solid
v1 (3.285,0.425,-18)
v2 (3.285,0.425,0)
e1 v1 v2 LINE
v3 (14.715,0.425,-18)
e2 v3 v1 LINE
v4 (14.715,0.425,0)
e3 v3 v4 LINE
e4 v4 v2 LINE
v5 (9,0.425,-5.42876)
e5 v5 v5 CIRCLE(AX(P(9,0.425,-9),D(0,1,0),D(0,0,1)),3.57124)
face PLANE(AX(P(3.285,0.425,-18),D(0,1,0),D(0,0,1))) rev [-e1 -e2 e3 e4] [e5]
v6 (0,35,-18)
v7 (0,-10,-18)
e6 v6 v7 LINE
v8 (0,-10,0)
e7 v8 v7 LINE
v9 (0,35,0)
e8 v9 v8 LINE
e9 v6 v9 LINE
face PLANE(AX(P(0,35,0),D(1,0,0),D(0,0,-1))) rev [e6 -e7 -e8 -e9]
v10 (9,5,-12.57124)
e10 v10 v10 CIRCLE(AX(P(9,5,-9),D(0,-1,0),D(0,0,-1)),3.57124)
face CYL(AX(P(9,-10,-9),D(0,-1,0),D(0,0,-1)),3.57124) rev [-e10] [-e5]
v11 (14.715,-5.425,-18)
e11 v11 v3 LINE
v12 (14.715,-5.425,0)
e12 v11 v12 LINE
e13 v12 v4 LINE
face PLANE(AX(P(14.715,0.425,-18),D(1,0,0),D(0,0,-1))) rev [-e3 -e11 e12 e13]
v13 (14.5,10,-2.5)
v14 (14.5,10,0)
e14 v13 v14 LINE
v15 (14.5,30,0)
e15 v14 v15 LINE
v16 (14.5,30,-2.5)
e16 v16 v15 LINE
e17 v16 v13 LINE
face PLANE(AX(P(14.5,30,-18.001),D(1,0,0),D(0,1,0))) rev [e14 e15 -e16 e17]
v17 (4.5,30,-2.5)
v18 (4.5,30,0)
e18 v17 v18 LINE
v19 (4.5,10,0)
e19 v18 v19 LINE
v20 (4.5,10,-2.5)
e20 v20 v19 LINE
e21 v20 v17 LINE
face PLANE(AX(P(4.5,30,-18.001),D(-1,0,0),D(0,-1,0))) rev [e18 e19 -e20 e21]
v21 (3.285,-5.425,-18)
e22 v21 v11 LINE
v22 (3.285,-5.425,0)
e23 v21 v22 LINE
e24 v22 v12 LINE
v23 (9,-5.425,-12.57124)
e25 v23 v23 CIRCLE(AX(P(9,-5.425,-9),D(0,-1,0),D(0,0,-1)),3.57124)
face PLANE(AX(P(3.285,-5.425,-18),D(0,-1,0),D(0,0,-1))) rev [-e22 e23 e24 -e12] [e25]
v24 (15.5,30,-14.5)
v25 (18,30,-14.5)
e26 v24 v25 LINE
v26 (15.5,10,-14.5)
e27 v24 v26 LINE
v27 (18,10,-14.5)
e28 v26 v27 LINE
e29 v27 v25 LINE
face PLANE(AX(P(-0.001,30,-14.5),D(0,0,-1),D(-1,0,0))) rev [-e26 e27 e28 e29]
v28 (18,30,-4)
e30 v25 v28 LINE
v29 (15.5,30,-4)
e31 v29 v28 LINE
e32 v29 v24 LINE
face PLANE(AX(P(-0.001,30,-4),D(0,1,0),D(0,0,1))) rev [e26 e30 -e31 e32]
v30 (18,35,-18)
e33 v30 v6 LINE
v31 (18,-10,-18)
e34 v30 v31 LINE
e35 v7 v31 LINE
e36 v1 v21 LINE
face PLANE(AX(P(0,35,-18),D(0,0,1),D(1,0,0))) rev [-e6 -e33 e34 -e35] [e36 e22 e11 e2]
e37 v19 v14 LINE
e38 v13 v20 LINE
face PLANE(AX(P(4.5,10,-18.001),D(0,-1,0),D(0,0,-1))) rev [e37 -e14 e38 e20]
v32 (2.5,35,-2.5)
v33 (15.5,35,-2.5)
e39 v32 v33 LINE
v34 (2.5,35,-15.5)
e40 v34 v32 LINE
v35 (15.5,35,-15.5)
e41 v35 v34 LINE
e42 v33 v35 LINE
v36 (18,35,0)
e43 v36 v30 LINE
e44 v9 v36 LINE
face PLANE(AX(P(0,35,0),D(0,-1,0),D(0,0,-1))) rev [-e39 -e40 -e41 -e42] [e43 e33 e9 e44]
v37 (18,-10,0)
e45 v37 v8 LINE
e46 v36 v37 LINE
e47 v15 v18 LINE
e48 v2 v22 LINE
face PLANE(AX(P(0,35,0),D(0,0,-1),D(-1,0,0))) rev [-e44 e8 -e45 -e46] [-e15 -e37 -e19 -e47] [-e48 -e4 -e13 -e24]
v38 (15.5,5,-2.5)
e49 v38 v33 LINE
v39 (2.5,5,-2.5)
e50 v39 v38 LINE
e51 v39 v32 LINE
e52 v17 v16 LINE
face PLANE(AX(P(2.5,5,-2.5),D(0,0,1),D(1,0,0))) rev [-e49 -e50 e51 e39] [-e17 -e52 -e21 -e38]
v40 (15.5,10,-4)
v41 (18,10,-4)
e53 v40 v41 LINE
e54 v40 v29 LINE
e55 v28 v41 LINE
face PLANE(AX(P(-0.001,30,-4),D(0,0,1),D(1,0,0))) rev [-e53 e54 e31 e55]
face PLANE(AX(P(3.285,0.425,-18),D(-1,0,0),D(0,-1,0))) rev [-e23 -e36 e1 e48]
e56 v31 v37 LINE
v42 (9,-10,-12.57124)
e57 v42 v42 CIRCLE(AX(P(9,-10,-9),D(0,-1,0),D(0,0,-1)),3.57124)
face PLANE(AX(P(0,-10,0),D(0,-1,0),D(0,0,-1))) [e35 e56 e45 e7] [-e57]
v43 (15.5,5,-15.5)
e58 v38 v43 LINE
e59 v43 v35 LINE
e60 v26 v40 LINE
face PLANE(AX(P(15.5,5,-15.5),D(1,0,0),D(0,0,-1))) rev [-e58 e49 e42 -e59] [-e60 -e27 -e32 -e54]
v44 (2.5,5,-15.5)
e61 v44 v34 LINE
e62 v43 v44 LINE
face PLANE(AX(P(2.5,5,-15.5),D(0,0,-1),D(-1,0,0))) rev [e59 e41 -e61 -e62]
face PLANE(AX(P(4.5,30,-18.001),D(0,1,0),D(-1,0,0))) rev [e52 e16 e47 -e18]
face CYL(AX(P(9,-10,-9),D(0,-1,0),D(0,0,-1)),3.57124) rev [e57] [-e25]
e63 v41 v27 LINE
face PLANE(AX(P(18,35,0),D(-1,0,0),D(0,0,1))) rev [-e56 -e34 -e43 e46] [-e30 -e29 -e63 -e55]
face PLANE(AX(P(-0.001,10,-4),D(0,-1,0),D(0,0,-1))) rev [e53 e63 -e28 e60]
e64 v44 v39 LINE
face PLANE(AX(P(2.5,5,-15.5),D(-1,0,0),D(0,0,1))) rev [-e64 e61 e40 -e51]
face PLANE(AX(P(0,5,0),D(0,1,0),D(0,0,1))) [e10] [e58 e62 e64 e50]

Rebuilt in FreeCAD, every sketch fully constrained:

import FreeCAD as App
import Part
import Sketcher
from FreeCAD import Vector
Q = App.Units.Quantity

doc = App.newDocument("Part")
body = doc.addObject("PartDesign::Body", "Body")

sketch1 = doc.addObject("Sketcher::SketchObject", "Sketch")
body.addObject(sketch1)
sketch1.AttachmentSupport = (doc.XZ_Plane, [""])
sketch1.MapMode = "FlatFace"
sketch1.addGeometry(Part.LineSegment(Vector(0, -18, 0), Vector(0, 0, 0)), False)
sketch1.addGeometry(Part.LineSegment(Vector(0, 0, 0), Vector(18, 0, 0)), False)
sketch1.addGeometry(Part.LineSegment(Vector(18, 0, 0), Vector(18, -18, 0)), False)
sketch1.addGeometry(Part.LineSegment(Vector(18, -18, 0), Vector(0, -18, 0)), False)
sketch1.addConstraint(Sketcher.Constraint("Coincident", 0, 2, 1, 1))
sketch1.addConstraint(Sketcher.Constraint("Coincident", 1, 2, 2, 1))
sketch1.addConstraint(Sketcher.Constraint("Coincident", 2, 2, 3, 1))
sketch1.addConstraint(Sketcher.Constraint("Coincident", 3, 2, 0, 1))
sketch1.addConstraint(Sketcher.Constraint("Vertical", 0))
sketch1.addConstraint(Sketcher.Constraint("Horizontal", 1))
sketch1.addConstraint(Sketcher.Constraint("Vertical", 2))
sketch1.addConstraint(Sketcher.Constraint("Horizontal", 3))
sketch1.addConstraint(Sketcher.Constraint("Coincident", 0, 2, -1, 1))
sketch1.addConstraint(Sketcher.Constraint("Equal", 3, 0))
sketch1.addConstraint(Sketcher.Constraint("DistanceX", 1, 1, 1, 2, Q("18 mm")))
pad1 = doc.addObject("PartDesign::Pad", "Pad")
body.addObject(pad1)
pad1.Profile = sketch1
pad1.Length = 35
pad1.Reversed = True

sketch2 = doc.addObject("Sketcher::SketchObject", "Sketch001")
body.addObject(sketch2)
sketch2.AttachmentSupport = (doc.XZ_Plane, [""])
sketch2.MapMode = "FlatFace"
sketch2.AttachmentOffset = App.Placement(Vector(0, 0, -35), App.Rotation())
sketch2.addGeometry(Part.LineSegment(Vector(2.5, -15.5, 0), Vector(2.5, -2.5, 0)), False)
sketch2.addGeometry(Part.LineSegment(Vector(2.5, -2.5, 0), Vector(15.5, -2.5, 0)), False)
sketch2.addGeometry(Part.LineSegment(Vector(15.5, -2.5, 0), Vector(15.5, -15.5, 0)), False)
sketch2.addGeometry(Part.LineSegment(Vector(15.5, -15.5, 0), Vector(2.5, -15.5, 0)), False)
sketch2.addConstraint(Sketcher.Constraint("Coincident", 0, 2, 1, 1))
sketch2.addConstraint(Sketcher.Constraint("Coincident", 1, 2, 2, 1))
sketch2.addConstraint(Sketcher.Constraint("Coincident", 2, 2, 3, 1))
sketch2.addConstraint(Sketcher.Constraint("Coincident", 3, 2, 0, 1))
sketch2.addConstraint(Sketcher.Constraint("Vertical", 0))
sketch2.addConstraint(Sketcher.Constraint("Horizontal", 1))
sketch2.addConstraint(Sketcher.Constraint("Vertical", 2))
sketch2.addConstraint(Sketcher.Constraint("Horizontal", 3))
sketch2.addConstraint(Sketcher.Constraint("Equal", 3, 0))
sketch2.addConstraint(Sketcher.Constraint("DistanceX", 1, 1, 1, 2, Q("13 mm")))
sketch2.addConstraint(Sketcher.Constraint("DistanceX", -1, 1, 0, 2, Q("2.5 mm")))
sketch2.addConstraint(Sketcher.Constraint("DistanceY", 0, 2, -1, 1, Q("2.5 mm")))
pocket1 = doc.addObject("PartDesign::Pocket", "Pocket")
body.addObject(pocket1)
pocket1.Profile = sketch2
pocket1.Length = 30
pocket1.Reversed = True

sketch3 = doc.addObject("Sketcher::SketchObject", "Sketch002")
body.addObject(sketch3)
sketch3.AttachmentSupport = (doc.YZ_Plane, [""])
sketch3.MapMode = "FlatFace"
sketch3.AttachmentOffset = App.Placement(Vector(0, 0, 18), App.Rotation())
sketch3.addGeometry(Part.LineSegment(Vector(30, -4, 0), Vector(10, -4, 0)), False)
sketch3.addGeometry(Part.LineSegment(Vector(10, -4, 0), Vector(10, -14.5, 0)), False)
sketch3.addGeometry(Part.LineSegment(Vector(10, -14.5, 0), Vector(30, -14.5, 0)), False)
sketch3.addGeometry(Part.LineSegment(Vector(30, -14.5, 0), Vector(30, -4, 0)), False)
sketch3.addConstraint(Sketcher.Constraint("Coincident", 0, 2, 1, 1))
sketch3.addConstraint(Sketcher.Constraint("Coincident", 1, 2, 2, 1))
sketch3.addConstraint(Sketcher.Constraint("Coincident", 2, 2, 3, 1))
sketch3.addConstraint(Sketcher.Constraint("Coincident", 3, 2, 0, 1))
sketch3.addConstraint(Sketcher.Constraint("Horizontal", 0))
sketch3.addConstraint(Sketcher.Constraint("Vertical", 1))
sketch3.addConstraint(Sketcher.Constraint("Horizontal", 2))
sketch3.addConstraint(Sketcher.Constraint("Vertical", 3))
sketch3.addConstraint(Sketcher.Constraint("DistanceX", 0, 2, 0, 1, Q("20 mm")))
sketch3.addConstraint(Sketcher.Constraint("DistanceY", 1, 2, 1, 1, Q("10.5 mm")))
sketch3.addConstraint(Sketcher.Constraint("DistanceX", -1, 1, 0, 2, Q("10 mm")))
sketch3.addConstraint(Sketcher.Constraint("DistanceY", 0, 2, -1, 1, Q("4 mm")))
pocket2 = doc.addObject("PartDesign::Pocket", "Pocket001")
body.addObject(pocket2)
pocket2.Profile = sketch3
pocket2.Type = "UpToFirst"

sketch4 = doc.addObject("Sketcher::SketchObject", "Sketch003")
body.addObject(sketch4)
sketch4.AttachmentSupport = (doc.XZ_Plane, [""])
sketch4.MapMode = "FlatFace"
sketch4.addGeometry(Part.LineSegment(Vector(0, 0, 0), Vector(0, -18, 0)), False)
sketch4.addGeometry(Part.LineSegment(Vector(0, -18, 0), Vector(18, -18, 0)), False)
sketch4.addGeometry(Part.LineSegment(Vector(18, -18, 0), Vector(18, 0, 0)), False)
sketch4.addGeometry(Part.LineSegment(Vector(18, 0, 0), Vector(0, 0, 0)), False)
sketch4.addConstraint(Sketcher.Constraint("Coincident", 0, 2, 1, 1))
sketch4.addConstraint(Sketcher.Constraint("Coincident", 1, 2, 2, 1))
sketch4.addConstraint(Sketcher.Constraint("Coincident", 2, 2, 3, 1))
sketch4.addConstraint(Sketcher.Constraint("Coincident", 3, 2, 0, 1))
sketch4.addConstraint(Sketcher.Constraint("Vertical", 0))
sketch4.addConstraint(Sketcher.Constraint("Horizontal", 1))
sketch4.addConstraint(Sketcher.Constraint("Vertical", 2))
sketch4.addConstraint(Sketcher.Constraint("Horizontal", 3))
sketch4.addConstraint(Sketcher.Constraint("Coincident", 3, 2, -1, 1))
sketch4.addConstraint(Sketcher.Constraint("Equal", 3, 0))
sketch4.addConstraint(Sketcher.Constraint("DistanceX", 1, 1, 1, 2, Q("18 mm")))
pad2 = doc.addObject("PartDesign::Pad", "Pad001")
body.addObject(pad2)
pad2.Profile = sketch4
pad2.Length = 10

sketch5 = doc.addObject("Sketcher::SketchObject", "Sketch004")
body.addObject(sketch5)
sketch5.AttachmentSupport = (doc.XY_Plane, [""])
sketch5.MapMode = "FlatFace"
sketch5.addGeometry(Part.LineSegment(Vector(3.285, 0.425, 0), Vector(3.285, -5.425, 0)), False)
sketch5.addGeometry(Part.LineSegment(Vector(3.285, -5.425, 0), Vector(14.715, -5.425, 0)), False)
sketch5.addGeometry(Part.LineSegment(Vector(14.715, -5.425, 0), Vector(14.715, 0.425, 0)), False)
sketch5.addGeometry(Part.LineSegment(Vector(14.715, 0.425, 0), Vector(3.285, 0.425, 0)), False)
sketch5.addConstraint(Sketcher.Constraint("Coincident", 0, 2, 1, 1))
sketch5.addConstraint(Sketcher.Constraint("Coincident", 1, 2, 2, 1))
sketch5.addConstraint(Sketcher.Constraint("Coincident", 2, 2, 3, 1))
sketch5.addConstraint(Sketcher.Constraint("Coincident", 3, 2, 0, 1))
sketch5.addConstraint(Sketcher.Constraint("Vertical", 0))
sketch5.addConstraint(Sketcher.Constraint("Horizontal", 1))
sketch5.addConstraint(Sketcher.Constraint("Vertical", 2))
sketch5.addConstraint(Sketcher.Constraint("Horizontal", 3))
sketch5.addConstraint(Sketcher.Constraint("DistanceX", 1, 1, 1, 2, Q("11.43 mm")))
sketch5.addConstraint(Sketcher.Constraint("DistanceY", 0, 2, 0, 1, Q("5.85 mm")))
sketch5.addConstraint(Sketcher.Constraint("DistanceX", -1, 1, 0, 2, Q("3.285 mm")))
sketch5.addConstraint(Sketcher.Constraint("DistanceY", 0, 2, -1, 1, Q("5.425 mm")))
pocket3 = doc.addObject("PartDesign::Pocket", "Pocket002")
body.addObject(pocket3)
pocket3.Profile = sketch5
pocket3.Type = "ThroughAll"

sketch6 = doc.addObject("Sketcher::SketchObject", "Sketch005")
body.addObject(sketch6)
sketch6.AttachmentSupport = (doc.XZ_Plane, [""])
sketch6.MapMode = "FlatFace"
sketch6.AttachmentOffset = App.Placement(Vector(0, 0, 10), App.Rotation())
sketch6.addGeometry(Part.Circle(Vector(9, -9, 0), Vector(0, 0, 1), 3.57124), False)
sketch6.addConstraint(Sketcher.Constraint("DistanceX", -1, 1, 0, 3, Q("9 mm")))
sketch6.addConstraint(Sketcher.Constraint("DistanceY", 0, 3, -1, 1, Q("9 mm")))
sketch6.addConstraint(Sketcher.Constraint("Diameter", 0, Q("7.14248 mm")))
doc.recompute()
hole = doc.addObject("PartDesign::Hole", "Hole")
body.addObject(hole)
hole.Profile = sketch6
hole.ThreadType = "None"
hole.Diameter = 7.14248
hole.DepthType = "Dimension"
hole.Depth = 15
hole.DrillPoint = "Angled"
hole.DrillPointAngle = 118

sketch7 = doc.addObject("Sketcher::SketchObject", "Sketch006")
body.addObject(sketch7)
sketch7.AttachmentSupport = (doc.XY_Plane, [""])
sketch7.MapMode = "FlatFace"
sketch7.addGeometry(Part.LineSegment(Vector(4.5, 30, 0), Vector(4.5, 10, 0)), False)
sketch7.addGeometry(Part.LineSegment(Vector(4.5, 10, 0), Vector(14.5, 10, 0)), False)
sketch7.addGeometry(Part.LineSegment(Vector(14.5, 10, 0), Vector(14.5, 30, 0)), False)
sketch7.addGeometry(Part.LineSegment(Vector(14.5, 30, 0), Vector(4.5, 30, 0)), False)
sketch7.addConstraint(Sketcher.Constraint("Coincident", 0, 2, 1, 1))
sketch7.addConstraint(Sketcher.Constraint("Coincident", 1, 2, 2, 1))
sketch7.addConstraint(Sketcher.Constraint("Coincident", 2, 2, 3, 1))
sketch7.addConstraint(Sketcher.Constraint("Coincident", 3, 2, 0, 1))
sketch7.addConstraint(Sketcher.Constraint("Vertical", 0))
sketch7.addConstraint(Sketcher.Constraint("Horizontal", 1))
sketch7.addConstraint(Sketcher.Constraint("Vertical", 2))
sketch7.addConstraint(Sketcher.Constraint("Horizontal", 3))
sketch7.addConstraint(Sketcher.Constraint("DistanceX", 1, 1, 1, 2, Q("10 mm")))
sketch7.addConstraint(Sketcher.Constraint("DistanceY", 0, 2, 0, 1, Q("20 mm")))
sketch7.addConstraint(Sketcher.Constraint("DistanceY", -1, 1, 0, 2, Q("10 mm")))
sketch7.addConstraint(Sketcher.Constraint("DistanceX", -1, 1, 0, 2, Q("4.5 mm")))
pocket4 = doc.addObject("PartDesign::Pocket", "Pocket003")
body.addObject(pocket4)
pocket4.Profile = sketch7
pocket4.Type = "UpToFirst"

doc.recompute()
